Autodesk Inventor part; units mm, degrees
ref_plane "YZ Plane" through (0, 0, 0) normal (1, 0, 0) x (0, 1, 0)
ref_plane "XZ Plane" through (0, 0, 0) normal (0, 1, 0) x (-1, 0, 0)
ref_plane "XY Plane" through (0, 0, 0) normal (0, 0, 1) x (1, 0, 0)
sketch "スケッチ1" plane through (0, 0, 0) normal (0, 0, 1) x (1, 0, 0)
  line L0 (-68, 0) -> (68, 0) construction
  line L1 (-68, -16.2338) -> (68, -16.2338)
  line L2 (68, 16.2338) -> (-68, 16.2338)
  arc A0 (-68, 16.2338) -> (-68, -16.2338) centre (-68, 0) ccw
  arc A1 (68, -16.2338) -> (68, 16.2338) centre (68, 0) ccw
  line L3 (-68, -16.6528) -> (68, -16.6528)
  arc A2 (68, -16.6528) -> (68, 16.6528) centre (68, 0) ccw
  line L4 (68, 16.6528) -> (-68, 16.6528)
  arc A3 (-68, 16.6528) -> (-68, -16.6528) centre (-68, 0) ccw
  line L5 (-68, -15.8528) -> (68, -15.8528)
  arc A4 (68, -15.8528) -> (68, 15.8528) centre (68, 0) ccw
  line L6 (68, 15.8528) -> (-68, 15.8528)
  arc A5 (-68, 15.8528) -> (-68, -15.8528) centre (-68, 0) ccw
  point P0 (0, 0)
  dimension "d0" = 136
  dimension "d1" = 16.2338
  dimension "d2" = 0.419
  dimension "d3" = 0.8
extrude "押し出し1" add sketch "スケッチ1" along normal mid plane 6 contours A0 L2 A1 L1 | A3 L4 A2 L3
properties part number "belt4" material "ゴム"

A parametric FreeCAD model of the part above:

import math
import FreeCAD as App
import Part
import Sketcher
from FreeCAD import Vector
Q = App.Units.Quantity

doc = App.newDocument("Part")
body = doc.addObject("PartDesign::Body", "Body")

# Sketch on XY plane
sketch1 = body.newObject("Sketcher::SketchObject", "Sketch")
sketch1.AttachmentSupport = (doc.getObject("XY_Plane"), [""])
sketch1.MapMode = "FlatFace"
sketch1.addGeometry([
    Part.ArcOfCircle(Part.Circle(Vector(-68, 0, 0), Vector(0, 0, 1), 16.6528), math.radians(90), math.radians(270)),  # 0
    Part.LineSegment(Vector(-68, -16.6528, 0), Vector(68, -16.6528, 0)),  # 1
    Part.ArcOfCircle(Part.Circle(Vector(68, 0, 0), Vector(0, 0, 1), 16.6528), math.radians(-90), math.radians(90)),  # 2
    Part.LineSegment(Vector(68, 16.6528, 0), Vector(-68, 16.6528, 0)),  # 3
    Part.LineSegment(Vector(68, -15.8528, 0), Vector(-68, -15.8528, 0)),  # 4
    Part.ArcOfCircle(Part.Circle(Vector(-68, 0, 0), Vector(0, 0, 1), 15.8528), math.radians(90), math.radians(270)),  # 5
    Part.LineSegment(Vector(-68, 15.8528, 0), Vector(68, 15.8528, 0)),  # 6
    Part.ArcOfCircle(Part.Circle(Vector(68, 0, 0), Vector(0, 0, 1), 15.8528), math.radians(-90), math.radians(90)),  # 7
], False)
sketch1.addConstraint([
    Sketcher.Constraint("Tangent", 0, 2, 1, 1),
    Sketcher.Constraint("Tangent", 1, 2, 2, 1),
    Sketcher.Constraint("Tangent", 2, 2, 3, 1),
    Sketcher.Constraint("Tangent", 3, 2, 0, 1),
    Sketcher.Constraint("Tangent", 4, 2, 5, 2),
    Sketcher.Constraint("Tangent", 5, 1, 6, 1),
    Sketcher.Constraint("Tangent", 6, 2, 7, 2),
    Sketcher.Constraint("Tangent", 7, 1, 4, 1),
    Sketcher.Constraint("Horizontal", 1),
    Sketcher.Constraint("Horizontal", 3),
    Sketcher.Constraint("Horizontal", 4),
    Sketcher.Constraint("Horizontal", 6),
    Sketcher.Constraint("Coincident", 5, 3, 0, 3),
    Sketcher.Constraint("Symmetric", 0, 3, 2, 3, -1, 1),
    Sketcher.Constraint("Vertical", 7, 3, 1, 2),
    Sketcher.Constraint("DistanceX", 1, 1, 1, 2, Q("136 mm")),
    Sketcher.Constraint("DistanceY", 0, 2, 4, 2, Q("0.8 mm")),
    Sketcher.Constraint("Radius", 0, Q("16.6528 mm")),
])
pad1 = body.newObject("PartDesign::Pad", "Pad")
pad1.Profile = sketch1
pad1.Length = 6
pad1.Midplane = True

doc.recompute()
